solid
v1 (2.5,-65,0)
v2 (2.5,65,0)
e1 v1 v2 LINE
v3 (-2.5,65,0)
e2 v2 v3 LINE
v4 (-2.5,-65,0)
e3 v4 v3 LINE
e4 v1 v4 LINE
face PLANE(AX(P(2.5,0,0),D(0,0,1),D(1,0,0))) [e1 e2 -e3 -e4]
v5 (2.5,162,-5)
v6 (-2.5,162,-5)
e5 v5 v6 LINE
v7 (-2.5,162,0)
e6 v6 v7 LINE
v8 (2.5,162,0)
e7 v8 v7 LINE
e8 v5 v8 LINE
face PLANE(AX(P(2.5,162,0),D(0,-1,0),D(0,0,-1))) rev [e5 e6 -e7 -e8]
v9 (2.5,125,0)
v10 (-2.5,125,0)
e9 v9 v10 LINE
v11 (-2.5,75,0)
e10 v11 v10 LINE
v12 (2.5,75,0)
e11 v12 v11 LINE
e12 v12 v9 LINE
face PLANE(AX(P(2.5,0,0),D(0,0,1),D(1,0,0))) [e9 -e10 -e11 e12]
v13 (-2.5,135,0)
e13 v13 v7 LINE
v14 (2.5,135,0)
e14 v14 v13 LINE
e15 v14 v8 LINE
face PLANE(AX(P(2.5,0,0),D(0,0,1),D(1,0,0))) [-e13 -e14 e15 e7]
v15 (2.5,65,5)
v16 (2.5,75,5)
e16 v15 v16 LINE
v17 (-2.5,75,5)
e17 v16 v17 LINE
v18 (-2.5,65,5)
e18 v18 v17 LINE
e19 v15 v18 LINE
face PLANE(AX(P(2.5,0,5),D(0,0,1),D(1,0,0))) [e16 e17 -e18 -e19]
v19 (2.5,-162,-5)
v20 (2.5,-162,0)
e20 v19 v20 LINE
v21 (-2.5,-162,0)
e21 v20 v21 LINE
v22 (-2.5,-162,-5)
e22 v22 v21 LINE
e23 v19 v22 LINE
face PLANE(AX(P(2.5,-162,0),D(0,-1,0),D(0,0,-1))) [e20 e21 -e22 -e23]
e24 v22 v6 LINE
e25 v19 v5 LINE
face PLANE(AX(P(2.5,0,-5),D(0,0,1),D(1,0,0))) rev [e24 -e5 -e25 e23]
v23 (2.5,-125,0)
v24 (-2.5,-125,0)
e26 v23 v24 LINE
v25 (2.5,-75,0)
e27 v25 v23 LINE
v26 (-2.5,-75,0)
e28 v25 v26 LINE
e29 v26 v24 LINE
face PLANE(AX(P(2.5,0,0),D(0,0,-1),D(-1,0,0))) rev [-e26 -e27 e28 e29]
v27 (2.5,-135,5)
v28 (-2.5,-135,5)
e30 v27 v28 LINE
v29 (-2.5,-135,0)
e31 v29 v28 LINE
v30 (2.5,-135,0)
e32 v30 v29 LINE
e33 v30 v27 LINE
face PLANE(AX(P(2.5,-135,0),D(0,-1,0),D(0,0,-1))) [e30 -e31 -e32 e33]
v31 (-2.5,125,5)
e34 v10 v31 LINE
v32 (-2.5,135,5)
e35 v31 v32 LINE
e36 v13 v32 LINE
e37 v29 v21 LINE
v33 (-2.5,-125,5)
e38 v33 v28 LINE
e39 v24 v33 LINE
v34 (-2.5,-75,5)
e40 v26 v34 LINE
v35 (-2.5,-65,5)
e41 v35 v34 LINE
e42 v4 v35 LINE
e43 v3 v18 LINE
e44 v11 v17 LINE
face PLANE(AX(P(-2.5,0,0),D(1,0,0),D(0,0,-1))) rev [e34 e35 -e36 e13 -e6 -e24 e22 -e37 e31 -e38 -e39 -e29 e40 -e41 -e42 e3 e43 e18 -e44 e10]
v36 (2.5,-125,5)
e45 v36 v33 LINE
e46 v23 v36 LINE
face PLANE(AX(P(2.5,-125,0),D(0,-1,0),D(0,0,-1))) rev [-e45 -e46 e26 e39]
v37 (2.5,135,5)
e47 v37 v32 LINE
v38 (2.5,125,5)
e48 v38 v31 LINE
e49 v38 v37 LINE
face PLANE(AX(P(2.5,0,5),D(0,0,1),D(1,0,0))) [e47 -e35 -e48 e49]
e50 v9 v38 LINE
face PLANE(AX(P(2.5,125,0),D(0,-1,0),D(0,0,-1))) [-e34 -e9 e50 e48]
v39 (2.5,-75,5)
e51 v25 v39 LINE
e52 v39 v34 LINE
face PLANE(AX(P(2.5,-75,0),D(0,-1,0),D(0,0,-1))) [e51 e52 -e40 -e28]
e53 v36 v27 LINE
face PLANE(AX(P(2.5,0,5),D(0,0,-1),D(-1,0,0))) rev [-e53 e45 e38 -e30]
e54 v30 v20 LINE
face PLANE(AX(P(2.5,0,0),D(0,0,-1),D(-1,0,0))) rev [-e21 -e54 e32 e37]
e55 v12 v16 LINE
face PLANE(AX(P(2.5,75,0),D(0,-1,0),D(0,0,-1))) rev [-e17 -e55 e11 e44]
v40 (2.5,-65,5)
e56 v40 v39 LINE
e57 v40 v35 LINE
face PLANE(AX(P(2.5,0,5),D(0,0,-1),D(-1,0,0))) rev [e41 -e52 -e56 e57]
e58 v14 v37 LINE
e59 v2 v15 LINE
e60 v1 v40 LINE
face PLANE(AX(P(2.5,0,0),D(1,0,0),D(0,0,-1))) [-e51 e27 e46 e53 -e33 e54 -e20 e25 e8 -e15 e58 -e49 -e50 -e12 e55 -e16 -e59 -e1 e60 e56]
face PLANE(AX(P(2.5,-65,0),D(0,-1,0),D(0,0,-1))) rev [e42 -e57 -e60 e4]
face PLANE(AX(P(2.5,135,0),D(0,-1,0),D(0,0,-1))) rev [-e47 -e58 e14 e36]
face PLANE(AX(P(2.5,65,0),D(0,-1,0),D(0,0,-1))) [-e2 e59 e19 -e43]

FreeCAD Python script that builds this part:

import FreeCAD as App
import Part
import Sketcher
Q = App.Units.Quantity

doc = App.newDocument("Part")
body = doc.addObject("PartDesign::Body", "Body")

sketch1 = body.newObject("Sketcher::SketchObject", "Sketch")
sketch1.AttachmentSupport = (doc.getObject("YZ_Plane"), [""])
sketch1.MapMode = "FlatFace"
sketch1.addGeometry(Part.LineSegment(App.Vector(0, 0, 0), App.Vector(0, -5, 0)), False)
sketch1.addGeometry(Part.LineSegment(App.Vector(0, -5, 0), App.Vector(162, -5, 0)), False)
sketch1.addGeometry(Part.LineSegment(App.Vector(162, -5, 0), App.Vector(162, 0, 0)), False)
sketch1.addGeometry(Part.LineSegment(App.Vector(162, 0, 0), App.Vector(135, 0, 0)), False)
sketch1.addGeometry(Part.LineSegment(App.Vector(135, 0, 0), App.Vector(135, 5, 0)), False)
sketch1.addGeometry(Part.LineSegment(App.Vector(135, 5, 0), App.Vector(125, 5, 0)), False)
sketch1.addGeometry(Part.LineSegment(App.Vector(125, 5, 0), App.Vector(125, 0, 0)), False)
sketch1.addGeometry(Part.LineSegment(App.Vector(125, 0, 0), App.Vector(75, 0, 0)), False)
sketch1.addGeometry(Part.LineSegment(App.Vector(75, 0, 0), App.Vector(75, 5, 0)), False)
sketch1.addGeometry(Part.LineSegment(App.Vector(75, 5, 0), App.Vector(65, 5, 0)), False)
sketch1.addGeometry(Part.LineSegment(App.Vector(65, 5, 0), App.Vector(65, 0, 0)), False)
sketch1.addGeometry(Part.LineSegment(App.Vector(65, 0, 0), App.Vector(0, 0, 0)), False)
sketch1.addConstraint(Sketcher.Constraint("Coincident", 0, 2, 1, 1))
sketch1.addConstraint(Sketcher.Constraint("Coincident", 1, 2, 2, 1))
sketch1.addConstraint(Sketcher.Constraint("Coincident", 2, 2, 3, 1))
sketch1.addConstraint(Sketcher.Constraint("Coincident", 3, 2, 4, 1))
sketch1.addConstraint(Sketcher.Constraint("Coincident", 4, 2, 5, 1))
sketch1.addConstraint(Sketcher.Constraint("Coincident", 5, 2, 6, 1))
sketch1.addConstraint(Sketcher.Constraint("Coincident", 6, 2, 7, 1))
sketch1.addConstraint(Sketcher.Constraint("Coincident", 7, 2, 8, 1))
sketch1.addConstraint(Sketcher.Constraint("Coincident", 8, 2, 9, 1))
sketch1.addConstraint(Sketcher.Constraint("Coincident", 9, 2, 10, 1))
sketch1.addConstraint(Sketcher.Constraint("Coincident", 10, 2, 11, 1))
sketch1.addConstraint(Sketcher.Constraint("Coincident", 11, 2, 0, 1))
sketch1.addConstraint(Sketcher.Constraint("Vertical", 0))
sketch1.addConstraint(Sketcher.Constraint("Horizontal", 1))
sketch1.addConstraint(Sketcher.Constraint("Vertical", 2))
sketch1.addConstraint(Sketcher.Constraint("Horizontal", 3))
sketch1.addConstraint(Sketcher.Constraint("Vertical", 4))
sketch1.addConstraint(Sketcher.Constraint("Horizontal", 5))
sketch1.addConstraint(Sketcher.Constraint("Vertical", 6))
sketch1.addConstraint(Sketcher.Constraint("Horizontal", 7))
sketch1.addConstraint(Sketcher.Constraint("Vertical", 8))
sketch1.addConstraint(Sketcher.Constraint("Horizontal", 9))
sketch1.addConstraint(Sketcher.Constraint("Vertical", 10))
sketch1.addConstraint(Sketcher.Constraint("Horizontal", 11))
sketch1.addConstraint(Sketcher.Constraint("Coincident", 11, 2, -1, 1))
sketch1.addConstraint(Sketcher.Constraint("PointOnObject", 2, 2, -1))
sketch1.addConstraint(Sketcher.Constraint("PointOnObject", 6, 2, -1))
sketch1.addConstraint(Sketcher.Constraint("Horizontal", 5, 2, 8, 2))
sketch1.addConstraint(Sketcher.Constraint("Equal", 5, 9))
sketch1.addConstraint(Sketcher.Constraint("Equal", 2, 4))
sketch1.addConstraint(Sketcher.Constraint("DistanceX", 1, 1, 1, 2, Q("162 mm")))
sketch1.addConstraint(Sketcher.Constraint("DistanceX", 3, 2, 3, 1, Q("27 mm")))
sketch1.addConstraint(Sketcher.Constraint("DistanceX", 5, 2, 5, 1, Q("10 mm")))
sketch1.addConstraint(Sketcher.Constraint("DistanceX", 7, 2, 7, 1, Q("50 mm")))
sketch1.addConstraint(Sketcher.Constraint("DistanceY", 0, 2, 0, 1, Q("5 mm")))
pad1 = body.newObject("PartDesign::Pad", "Pad")
pad1.Profile = sketch1
pad1.Length = 5
pad1.Midplane = True
doc.recompute()

mirrored = body.newObject("PartDesign::Mirrored", "Mirrored")
mirrored.Originals = [pad1]
mirrored.MirrorPlane = (doc.getObject("XZ_Plane"), [""])
body.Tip = mirrored

doc.recompute()
